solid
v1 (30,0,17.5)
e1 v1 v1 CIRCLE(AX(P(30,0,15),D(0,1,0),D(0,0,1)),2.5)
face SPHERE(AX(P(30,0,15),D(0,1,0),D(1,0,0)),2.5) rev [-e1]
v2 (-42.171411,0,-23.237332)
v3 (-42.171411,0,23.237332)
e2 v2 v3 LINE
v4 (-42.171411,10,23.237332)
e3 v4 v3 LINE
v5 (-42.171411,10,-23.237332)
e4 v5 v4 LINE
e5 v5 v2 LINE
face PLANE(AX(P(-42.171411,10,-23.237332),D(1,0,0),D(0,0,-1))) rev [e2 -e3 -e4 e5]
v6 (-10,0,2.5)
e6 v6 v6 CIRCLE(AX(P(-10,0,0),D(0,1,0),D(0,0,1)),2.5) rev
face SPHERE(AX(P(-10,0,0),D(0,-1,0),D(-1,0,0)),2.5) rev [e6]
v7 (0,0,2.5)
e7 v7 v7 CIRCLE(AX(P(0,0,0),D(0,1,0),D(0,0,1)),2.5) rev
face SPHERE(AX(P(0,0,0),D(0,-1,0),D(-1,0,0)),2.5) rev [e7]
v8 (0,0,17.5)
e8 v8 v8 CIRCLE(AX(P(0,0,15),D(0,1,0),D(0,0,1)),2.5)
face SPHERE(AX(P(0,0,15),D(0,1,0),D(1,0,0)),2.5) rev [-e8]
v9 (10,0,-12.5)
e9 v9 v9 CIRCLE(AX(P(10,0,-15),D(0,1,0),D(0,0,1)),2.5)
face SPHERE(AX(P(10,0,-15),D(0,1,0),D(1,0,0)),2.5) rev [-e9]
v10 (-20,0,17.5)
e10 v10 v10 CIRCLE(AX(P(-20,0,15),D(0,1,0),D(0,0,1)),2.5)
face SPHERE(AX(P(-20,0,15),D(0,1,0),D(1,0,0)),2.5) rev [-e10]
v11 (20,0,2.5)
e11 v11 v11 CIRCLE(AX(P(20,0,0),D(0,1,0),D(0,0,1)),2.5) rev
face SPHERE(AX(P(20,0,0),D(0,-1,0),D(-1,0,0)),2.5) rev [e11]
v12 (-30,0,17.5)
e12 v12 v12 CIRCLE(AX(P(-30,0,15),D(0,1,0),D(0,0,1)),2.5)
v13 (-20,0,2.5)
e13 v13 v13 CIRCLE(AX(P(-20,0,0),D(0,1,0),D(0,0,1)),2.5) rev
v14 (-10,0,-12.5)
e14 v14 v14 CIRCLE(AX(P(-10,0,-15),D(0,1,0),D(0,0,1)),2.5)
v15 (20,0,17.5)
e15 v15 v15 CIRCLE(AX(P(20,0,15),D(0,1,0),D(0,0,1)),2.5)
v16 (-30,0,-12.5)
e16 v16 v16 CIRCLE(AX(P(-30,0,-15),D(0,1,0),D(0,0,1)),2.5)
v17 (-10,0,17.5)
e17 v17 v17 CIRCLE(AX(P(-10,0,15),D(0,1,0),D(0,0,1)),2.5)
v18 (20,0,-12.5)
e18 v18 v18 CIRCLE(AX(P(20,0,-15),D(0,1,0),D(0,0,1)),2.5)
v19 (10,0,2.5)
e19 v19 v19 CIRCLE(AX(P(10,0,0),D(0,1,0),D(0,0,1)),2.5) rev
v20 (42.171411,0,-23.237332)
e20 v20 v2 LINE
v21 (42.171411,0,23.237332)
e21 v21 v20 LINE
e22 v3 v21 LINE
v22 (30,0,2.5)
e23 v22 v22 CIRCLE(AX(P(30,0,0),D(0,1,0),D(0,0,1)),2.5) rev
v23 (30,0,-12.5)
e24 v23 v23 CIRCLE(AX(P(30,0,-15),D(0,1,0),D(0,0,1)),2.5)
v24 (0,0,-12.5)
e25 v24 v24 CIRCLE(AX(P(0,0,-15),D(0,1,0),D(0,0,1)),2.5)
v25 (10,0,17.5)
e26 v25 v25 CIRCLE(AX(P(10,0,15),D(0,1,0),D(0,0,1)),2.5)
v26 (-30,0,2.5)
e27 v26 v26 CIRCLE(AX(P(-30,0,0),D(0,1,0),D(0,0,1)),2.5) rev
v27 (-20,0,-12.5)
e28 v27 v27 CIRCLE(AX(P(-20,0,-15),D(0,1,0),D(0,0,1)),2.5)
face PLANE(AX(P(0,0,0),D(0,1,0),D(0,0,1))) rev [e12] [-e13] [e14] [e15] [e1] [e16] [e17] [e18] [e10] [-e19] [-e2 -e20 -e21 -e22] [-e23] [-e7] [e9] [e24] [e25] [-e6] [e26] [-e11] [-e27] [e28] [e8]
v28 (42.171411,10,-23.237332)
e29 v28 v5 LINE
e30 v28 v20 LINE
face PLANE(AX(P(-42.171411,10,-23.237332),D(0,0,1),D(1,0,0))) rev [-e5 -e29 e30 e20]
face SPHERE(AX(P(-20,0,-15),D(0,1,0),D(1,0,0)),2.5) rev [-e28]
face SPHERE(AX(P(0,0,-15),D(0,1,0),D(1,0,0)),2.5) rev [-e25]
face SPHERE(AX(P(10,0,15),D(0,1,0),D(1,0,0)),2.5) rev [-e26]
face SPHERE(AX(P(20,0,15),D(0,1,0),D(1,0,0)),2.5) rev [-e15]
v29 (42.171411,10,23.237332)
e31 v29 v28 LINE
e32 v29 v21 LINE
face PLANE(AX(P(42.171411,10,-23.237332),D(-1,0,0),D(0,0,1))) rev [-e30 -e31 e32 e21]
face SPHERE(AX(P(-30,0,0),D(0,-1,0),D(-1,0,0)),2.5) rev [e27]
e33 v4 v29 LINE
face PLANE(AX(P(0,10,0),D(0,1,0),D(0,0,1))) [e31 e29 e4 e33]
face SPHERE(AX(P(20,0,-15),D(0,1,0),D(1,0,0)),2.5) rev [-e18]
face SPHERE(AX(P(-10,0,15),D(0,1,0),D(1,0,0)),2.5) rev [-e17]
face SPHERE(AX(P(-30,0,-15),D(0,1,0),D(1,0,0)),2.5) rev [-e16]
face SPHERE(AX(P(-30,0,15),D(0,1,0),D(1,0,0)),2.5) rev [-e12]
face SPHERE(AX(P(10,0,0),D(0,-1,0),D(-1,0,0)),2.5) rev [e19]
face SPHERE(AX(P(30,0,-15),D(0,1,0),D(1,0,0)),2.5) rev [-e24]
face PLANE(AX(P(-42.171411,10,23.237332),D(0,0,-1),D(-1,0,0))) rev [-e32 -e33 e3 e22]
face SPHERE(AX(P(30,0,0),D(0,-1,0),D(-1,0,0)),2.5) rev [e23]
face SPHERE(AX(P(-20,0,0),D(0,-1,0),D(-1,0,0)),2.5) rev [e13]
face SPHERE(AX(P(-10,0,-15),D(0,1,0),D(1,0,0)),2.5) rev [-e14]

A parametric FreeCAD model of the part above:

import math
import FreeCAD as App
import Part
import Sketcher
from FreeCAD import Vector

doc = App.newDocument("Part")
body = doc.addObject("PartDesign::Body", "Body")

# Sketch on XZ plane
sketch1 = body.newObject("Sketcher::SketchObject", "Sketch")
sketch1.AttachmentSupport = (doc.getObject("XZ_Plane"), [""])
sketch1.MapMode = "FlatFace"
sketch1.addGeometry([
    Part.LineSegment(Vector(-42.171411, -23.237332, 0), Vector(-42.171411, 23.237332, 0)),
    Part.LineSegment(Vector(-42.171411, 23.237332, 0), Vector(42.171411, 23.237332, 0)),
    Part.LineSegment(Vector(42.171411, 23.237332, 0), Vector(42.171411, -23.237332, 0)),
    Part.LineSegment(Vector(42.171411, -23.237332, 0), Vector(-42.171411, -23.237332, 0)),
], False)
sketch1.addConstraint([
    Sketcher.Constraint("Coincident", 0, 2, 1, 1),
    Sketcher.Constraint("Coincident", 1, 2, 2, 1),
    Sketcher.Constraint("Coincident", 2, 2, 3, 1),
    Sketcher.Constraint("Coincident", 3, 2, 0, 1),
    Sketcher.Constraint("Vertical", 0),
    Sketcher.Constraint("Horizontal", 1),
    Sketcher.Constraint("Vertical", 2),
    Sketcher.Constraint("Horizontal", 3),
    Sketcher.Constraint("Symmetric", 0, 2, 2, 2, -1, 1),
    Sketcher.Constraint("DistanceX", 1, 1, 1, 2, 84.342821),
    Sketcher.Constraint("DistanceY", 0, 1, 0, 2, 46.474664),
])
pad1 = body.newObject("PartDesign::Pad", "Pad")
pad1.Profile = sketch1
pad1.Length = 10
pad1.Reversed = True

# Sketch on XY plane
sketch2 = body.newObject("Sketcher::SketchObject", "Sketch001")
sketch2.AttachmentSupport = (doc.getObject("XY_Plane"), [""])
sketch2.MapMode = "FlatFace"
sketch2.addGeometry([
    Part.LineSegment(Vector(0, -2.5, 0), Vector(0, 2.5, 0)),
    Part.ArcOfCircle(Part.Circle(Vector(0, 0, 0), Vector(0, 0, 1), 2.5), math.radians(90), math.radians(270)),
], False)
sketch2.addConstraint([
    Sketcher.Constraint("Coincident", 0, 1, 1, 2),
    Sketcher.Constraint("Coincident", 1, 1, 0, 2),
    Sketcher.Constraint("Vertical", 0),
    Sketcher.Constraint("Coincident", 1, 3, -1, 1),
    Sketcher.Constraint("PointOnObject", 0, 1, -2),
    Sketcher.Constraint("Radius", 1, 2.5),
])
groove = body.newObject("PartDesign::Groove", "Groove")
groove.Profile = sketch2
groove.ReferenceAxis = (sketch2, ["V_Axis"])
groove.Angle = 360
doc.recompute()

linearpattern = body.newObject("PartDesign::LinearPattern", "LinearPattern")
linearpattern.Originals = [groove]
linearpattern.Direction = (doc.getObject("X_Axis"), [""])
linearpattern.Mode = "offset"
linearpattern.Offset = 10
linearpattern.Occurrences = 4
linearpattern.Reversed = True
body.Tip = linearpattern
doc.recompute()

linearpattern2 = body.newObject("PartDesign::LinearPattern", "LinearPattern001")
linearpattern2.Originals = [groove]
linearpattern2.Direction = (doc.getObject("X_Axis"), [""])
linearpattern2.Mode = "offset"
linearpattern2.Offset = 10
linearpattern2.Occurrences = 4
body.Tip = linearpattern2

# Sketch on XY plane
sketch3 = body.newObject("Sketcher::SketchObject", "Sketch002")
sketch3.AttachmentSupport = (doc.getObject("XY_Plane"), [""])
sketch3.MapMode = "FlatFace"
sketch3.AttachmentOffset = App.Placement(Vector(0, 0, 15), App.Rotation())
sketch3.addGeometry([
    Part.LineSegment(Vector(0, -2.5, 0), Vector(0, 2.5, 0)),
    Part.ArcOfCircle(Part.Circle(Vector(0, 0, 0), Vector(0, 0, 1), 2.5), math.radians(90), math.radians(270)),
], False)
sketch3.addConstraint([
    Sketcher.Constraint("Coincident", 0, 1, 1, 2),
    Sketcher.Constraint("Coincident", 1, 1, 0, 2),
    Sketcher.Constraint("Vertical", 0),
    Sketcher.Constraint("Coincident", 1, 3, -1, 1),
    Sketcher.Constraint("PointOnObject", 0, 1, -2),
    Sketcher.Constraint("Radius", 1, 2.5),
])
groove2 = body.newObject("PartDesign::Groove", "Groove001")
groove2.Profile = sketch3
groove2.ReferenceAxis = (sketch3, ["V_Axis"])
groove2.Angle = 360
doc.recompute()

linearpattern3 = body.newObject("PartDesign::LinearPattern", "LinearPattern002")
linearpattern3.Originals = [groove2]
linearpattern3.Direction = (doc.getObject("X_Axis"), [""])
linearpattern3.Mode = "offset"
linearpattern3.Offset = 10
linearpattern3.Occurrences = 4
body.Tip = linearpattern3
doc.recompute()

linearpattern4 = body.newObject("PartDesign::LinearPattern", "LinearPattern003")
linearpattern4.Originals = [groove2]
linearpattern4.Direction = (doc.getObject("X_Axis"), [""])
linearpattern4.Mode = "offset"
linearpattern4.Offset = 10
linearpattern4.Occurrences = 4
linearpattern4.Reversed = True
body.Tip = linearpattern4
doc.recompute()

mirrored = body.newObject("PartDesign::Mirrored", "Mirrored")
mirrored.Originals = [groove2]
mirrored.MirrorPlane = (doc.getObject("XY_Plane"), [""])
body.Tip = mirrored

# Sketch on XY plane
sketch4 = body.newObject("Sketcher::SketchObject", "Sketch003")
sketch4.AttachmentSupport = (doc.getObject("XY_Plane"), [""])
sketch4.MapMode = "FlatFace"
sketch4.AttachmentOffset = App.Placement(Vector(0, 0, -15), App.Rotation())
sketch4.addGeometry([
    Part.LineSegment(Vector(10, 2.5, 0), Vector(10, -2.5, 0)),
    Part.ArcOfCircle(Part.Circle(Vector(10, 0, 0), Vector(0, 0, 1), 2.5), math.radians(90), math.radians(270)),
], False)
sketch4.addGeometry(Part.LineSegment(Vector(10, -2.5, 0), Vector(10, 2.5, 0)), True)  # axis
sketch4.addConstraint([
    Sketcher.Constraint("Coincident", 0, 1, 1, 1),
    Sketcher.Constraint("Coincident", 1, 2, 0, 2),
    Sketcher.Constraint("Vertical", 0),
    Sketcher.Constraint("Vertical", 2),
    Sketcher.Constraint("Coincident", 2, 1, 1, 2),
    Sketcher.Constraint("PointOnObject", 1, 3, -1),
    Sketcher.Constraint("Vertical", 1, 3, 0, 1),
    Sketcher.Constraint("Equal", 0, 2),
    Sketcher.Constraint("Radius", 1, 2.5),
    Sketcher.Constraint("DistanceX", -1, 1, 1, 3, 10.0),
])
groove3 = body.newObject("PartDesign::Groove", "Groove002")
groove3.Profile = sketch4
groove3.ReferenceAxis = (sketch4, ["Axis0"])
groove3.Angle = 360

# Sketch on XY plane
sketch5 = body.newObject("Sketcher::SketchObject", "Sketch004")
sketch5.AttachmentSupport = (doc.getObject("XY_Plane"), [""])
sketch5.MapMode = "FlatFace"
sketch5.AttachmentOffset = App.Placement(Vector(0, 0, -15), App.Rotation())
sketch5.addGeometry([
    Part.LineSegment(Vector(20, 2.5, 0), Vector(20, -2.5, 0)),
    Part.ArcOfCircle(Part.Circle(Vector(20, 0, 0), Vector(0, 0, 1), 2.5), math.radians(90), math.radians(270)),
], False)
sketch5.addGeometry(Part.LineSegment(Vector(20, -2.5, 0), Vector(20, 2.5, 0)), True)  # axis
sketch5.addConstraint([
    Sketcher.Constraint("Coincident", 0, 1, 1, 1),
    Sketcher.Constraint("Coincident", 1, 2, 0, 2),
    Sketcher.Constraint("Vertical", 0),
    Sketcher.Constraint("Vertical", 2),
    Sketcher.Constraint("Coincident", 2, 1, 1, 2),
    Sketcher.Constraint("PointOnObject", 1, 3, -1),
    Sketcher.Constraint("Vertical", 1, 3, 0, 1),
    Sketcher.Constraint("Equal", 0, 2),
    Sketcher.Constraint("Radius", 1, 2.5),
    Sketcher.Constraint("DistanceX", -1, 1, 1, 3, 20.0),
])
groove4 = body.newObject("PartDesign::Groove", "Groove003")
groove4.Profile = sketch5
groove4.ReferenceAxis = (sketch5, ["Axis0"])
groove4.Angle = 360

# Sketch on XY plane
sketch6 = body.newObject("Sketcher::SketchObject", "Sketch005")
sketch6.AttachmentSupport = (doc.getObject("XY_Plane"), [""])
sketch6.MapMode = "FlatFace"
sketch6.AttachmentOffset = App.Placement(Vector(0, 0, -15), App.Rotation())
sketch6.addGeometry([
    Part.LineSegment(Vector(30, 2.5, 0), Vector(30, -2.5, 0)),
    Part.ArcOfCircle(Part.Circle(Vector(30, 0, 0), Vector(0, 0, 1), 2.5), math.radians(90), math.radians(270)),
], False)
sketch6.addGeometry(Part.LineSegment(Vector(30, -2.5, 0), Vector(30, 2.5, 0)), True)  # axis
sketch6.addConstraint([
    Sketcher.Constraint("Coincident", 0, 1, 1, 1),
    Sketcher.Constraint("Coincident", 1, 2, 0, 2),
    Sketcher.Constraint("Vertical", 0),
    Sketcher.Constraint("Vertical", 2),
    Sketcher.Constraint("Coincident", 2, 1, 1, 2),
    Sketcher.Constraint("PointOnObject", 1, 3, -1),
    Sketcher.Constraint("Vertical", 1, 3, 0, 1),
    Sketcher.Constraint("Equal", 0, 2),
    Sketcher.Constraint("Radius", 1, 2.5),
    Sketcher.Constraint("DistanceX", -1, 1, 1, 3, 30.0),
])
groove5 = body.newObject("PartDesign::Groove", "Groove004")
groove5.Profile = sketch6
groove5.ReferenceAxis = (sketch6, ["Axis0"])
groove5.Angle = 360

# Sketch on XY plane
sketch7 = body.newObject("Sketcher::SketchObject", "Sketch006")
sketch7.AttachmentSupport = (doc.getObject("XY_Plane"), [""])
sketch7.MapMode = "FlatFace"
sketch7.AttachmentOffset = App.Placement(Vector(0, 0, -15), App.Rotation())
sketch7.addGeometry([
    Part.LineSegment(Vector(-10, 2.5, 0), Vector(-10, -2.5, 0)),
    Part.ArcOfCircle(Part.Circle(Vector(-10, 0, 0), Vector(0, 0, 1), 2.5), math.radians(90), math.radians(270)),
], False)
sketch7.addGeometry(Part.LineSegment(Vector(-10, -2.5, 0), Vector(-10, 2.5, 0)), True)  # axis
sketch7.addConstraint([
    Sketcher.Constraint("Coincident", 0, 1, 1, 1),
    Sketcher.Constraint("Coincident", 1, 2, 0, 2),
    Sketcher.Constraint("Vertical", 0),
    Sketcher.Constraint("Vertical", 2),
    Sketcher.Constraint("Coincident", 2, 1, 1, 2),
    Sketcher.Constraint("PointOnObject", 1, 3, -1),
    Sketcher.Constraint("Vertical", 1, 3, 0, 1),
    Sketcher.Constraint("Equal", 0, 2),
    Sketcher.Constraint("Radius", 1, 2.5),
    Sketcher.Constraint("DistanceX", 1, 3, -1, 1, 10.0),
])
groove6 = body.newObject("PartDesign::Groove", "Groove005")
groove6.Profile = sketch7
groove6.ReferenceAxis = (sketch7, ["Axis0"])
groove6.Angle = 360

# Sketch on XY plane
sketch8 = body.newObject("Sketcher::SketchObject", "Sketch007")
sketch8.AttachmentSupport = (doc.getObject("XY_Plane"), [""])
sketch8.MapMode = "FlatFace"
sketch8.AttachmentOffset = App.Placement(Vector(0, 0, -15), App.Rotation())
sketch8.addGeometry([
    Part.LineSegment(Vector(-20, 2.5, 0), Vector(-20, -2.5, 0)),
    Part.ArcOfCircle(Part.Circle(Vector(-20, 0, 0), Vector(0, 0, 1), 2.5), math.radians(90), math.radians(270)),
], False)
sketch8.addGeometry(Part.LineSegment(Vector(-20, -2.5, 0), Vector(-20, 2.5, 0)), True)  # axis
sketch8.addConstraint([
    Sketcher.Constraint("Coincident", 0, 1, 1, 1),
    Sketcher.Constraint("Coincident", 1, 2, 0, 2),
    Sketcher.Constraint("Vertical", 0),
    Sketcher.Constraint("Vertical", 2),
    Sketcher.Constraint("Coincident", 2, 1, 1, 2),
    Sketcher.Constraint("PointOnObject", 1, 3, -1),
    Sketcher.Constraint("Vertical", 1, 3, 0, 1),
    Sketcher.Constraint("Equal", 0, 2),
    Sketcher.Constraint("Radius", 1, 2.5),
    Sketcher.Constraint("DistanceX", 1, 3, -1, 1, 20.0),
])
groove7 = body.newObject("PartDesign::Groove", "Groove006")
groove7.Profile = sketch8
groove7.ReferenceAxis = (sketch8, ["Axis0"])
groove7.Angle = 360

# Sketch on XY plane
sketch9 = body.newObject("Sketcher::SketchObject", "Sketch008")
sketch9.AttachmentSupport = (doc.getObject("XY_Plane"), [""])
sketch9.MapMode = "FlatFace"
sketch9.AttachmentOffset = App.Placement(Vector(0, 0, -15), App.Rotation())
sketch9.addGeometry([
    Part.LineSegment(Vector(-30, 2.5, 0), Vector(-30, -2.5, 0)),
    Part.ArcOfCircle(Part.Circle(Vector(-30, 0, 0), Vector(0, 0, 1), 2.5), math.radians(90), math.radians(270)),
], False)
sketch9.addGeometry(Part.LineSegment(Vector(-30, -2.5, 0), Vector(-30, 2.5, 0)), True)  # axis
sketch9.addConstraint([
    Sketcher.Constraint("Coincident", 0, 1, 1, 1),
    Sketcher.Constraint("Coincident", 1, 2, 0, 2),
    Sketcher.Constraint("Vertical", 0),
    Sketcher.Constraint("Vertical", 2),
    Sketcher.Constraint("Coincident", 2, 1, 1, 2),
    Sketcher.Constraint("PointOnObject", 1, 3, -1),
    Sketcher.Constraint("Vertical", 1, 3, 0, 1),
    Sketcher.Constraint("Equal", 0, 2),
    Sketcher.Constraint("Radius", 1, 2.5),
    Sketcher.Constraint("DistanceX", 1, 3, -1, 1, 30.0),
])
groove8 = body.newObject("PartDesign::Groove", "Groove007")
groove8.Profile = sketch9
groove8.ReferenceAxis = (sketch9, ["Axis0"])
groove8.Angle = 360

doc.recompute()
